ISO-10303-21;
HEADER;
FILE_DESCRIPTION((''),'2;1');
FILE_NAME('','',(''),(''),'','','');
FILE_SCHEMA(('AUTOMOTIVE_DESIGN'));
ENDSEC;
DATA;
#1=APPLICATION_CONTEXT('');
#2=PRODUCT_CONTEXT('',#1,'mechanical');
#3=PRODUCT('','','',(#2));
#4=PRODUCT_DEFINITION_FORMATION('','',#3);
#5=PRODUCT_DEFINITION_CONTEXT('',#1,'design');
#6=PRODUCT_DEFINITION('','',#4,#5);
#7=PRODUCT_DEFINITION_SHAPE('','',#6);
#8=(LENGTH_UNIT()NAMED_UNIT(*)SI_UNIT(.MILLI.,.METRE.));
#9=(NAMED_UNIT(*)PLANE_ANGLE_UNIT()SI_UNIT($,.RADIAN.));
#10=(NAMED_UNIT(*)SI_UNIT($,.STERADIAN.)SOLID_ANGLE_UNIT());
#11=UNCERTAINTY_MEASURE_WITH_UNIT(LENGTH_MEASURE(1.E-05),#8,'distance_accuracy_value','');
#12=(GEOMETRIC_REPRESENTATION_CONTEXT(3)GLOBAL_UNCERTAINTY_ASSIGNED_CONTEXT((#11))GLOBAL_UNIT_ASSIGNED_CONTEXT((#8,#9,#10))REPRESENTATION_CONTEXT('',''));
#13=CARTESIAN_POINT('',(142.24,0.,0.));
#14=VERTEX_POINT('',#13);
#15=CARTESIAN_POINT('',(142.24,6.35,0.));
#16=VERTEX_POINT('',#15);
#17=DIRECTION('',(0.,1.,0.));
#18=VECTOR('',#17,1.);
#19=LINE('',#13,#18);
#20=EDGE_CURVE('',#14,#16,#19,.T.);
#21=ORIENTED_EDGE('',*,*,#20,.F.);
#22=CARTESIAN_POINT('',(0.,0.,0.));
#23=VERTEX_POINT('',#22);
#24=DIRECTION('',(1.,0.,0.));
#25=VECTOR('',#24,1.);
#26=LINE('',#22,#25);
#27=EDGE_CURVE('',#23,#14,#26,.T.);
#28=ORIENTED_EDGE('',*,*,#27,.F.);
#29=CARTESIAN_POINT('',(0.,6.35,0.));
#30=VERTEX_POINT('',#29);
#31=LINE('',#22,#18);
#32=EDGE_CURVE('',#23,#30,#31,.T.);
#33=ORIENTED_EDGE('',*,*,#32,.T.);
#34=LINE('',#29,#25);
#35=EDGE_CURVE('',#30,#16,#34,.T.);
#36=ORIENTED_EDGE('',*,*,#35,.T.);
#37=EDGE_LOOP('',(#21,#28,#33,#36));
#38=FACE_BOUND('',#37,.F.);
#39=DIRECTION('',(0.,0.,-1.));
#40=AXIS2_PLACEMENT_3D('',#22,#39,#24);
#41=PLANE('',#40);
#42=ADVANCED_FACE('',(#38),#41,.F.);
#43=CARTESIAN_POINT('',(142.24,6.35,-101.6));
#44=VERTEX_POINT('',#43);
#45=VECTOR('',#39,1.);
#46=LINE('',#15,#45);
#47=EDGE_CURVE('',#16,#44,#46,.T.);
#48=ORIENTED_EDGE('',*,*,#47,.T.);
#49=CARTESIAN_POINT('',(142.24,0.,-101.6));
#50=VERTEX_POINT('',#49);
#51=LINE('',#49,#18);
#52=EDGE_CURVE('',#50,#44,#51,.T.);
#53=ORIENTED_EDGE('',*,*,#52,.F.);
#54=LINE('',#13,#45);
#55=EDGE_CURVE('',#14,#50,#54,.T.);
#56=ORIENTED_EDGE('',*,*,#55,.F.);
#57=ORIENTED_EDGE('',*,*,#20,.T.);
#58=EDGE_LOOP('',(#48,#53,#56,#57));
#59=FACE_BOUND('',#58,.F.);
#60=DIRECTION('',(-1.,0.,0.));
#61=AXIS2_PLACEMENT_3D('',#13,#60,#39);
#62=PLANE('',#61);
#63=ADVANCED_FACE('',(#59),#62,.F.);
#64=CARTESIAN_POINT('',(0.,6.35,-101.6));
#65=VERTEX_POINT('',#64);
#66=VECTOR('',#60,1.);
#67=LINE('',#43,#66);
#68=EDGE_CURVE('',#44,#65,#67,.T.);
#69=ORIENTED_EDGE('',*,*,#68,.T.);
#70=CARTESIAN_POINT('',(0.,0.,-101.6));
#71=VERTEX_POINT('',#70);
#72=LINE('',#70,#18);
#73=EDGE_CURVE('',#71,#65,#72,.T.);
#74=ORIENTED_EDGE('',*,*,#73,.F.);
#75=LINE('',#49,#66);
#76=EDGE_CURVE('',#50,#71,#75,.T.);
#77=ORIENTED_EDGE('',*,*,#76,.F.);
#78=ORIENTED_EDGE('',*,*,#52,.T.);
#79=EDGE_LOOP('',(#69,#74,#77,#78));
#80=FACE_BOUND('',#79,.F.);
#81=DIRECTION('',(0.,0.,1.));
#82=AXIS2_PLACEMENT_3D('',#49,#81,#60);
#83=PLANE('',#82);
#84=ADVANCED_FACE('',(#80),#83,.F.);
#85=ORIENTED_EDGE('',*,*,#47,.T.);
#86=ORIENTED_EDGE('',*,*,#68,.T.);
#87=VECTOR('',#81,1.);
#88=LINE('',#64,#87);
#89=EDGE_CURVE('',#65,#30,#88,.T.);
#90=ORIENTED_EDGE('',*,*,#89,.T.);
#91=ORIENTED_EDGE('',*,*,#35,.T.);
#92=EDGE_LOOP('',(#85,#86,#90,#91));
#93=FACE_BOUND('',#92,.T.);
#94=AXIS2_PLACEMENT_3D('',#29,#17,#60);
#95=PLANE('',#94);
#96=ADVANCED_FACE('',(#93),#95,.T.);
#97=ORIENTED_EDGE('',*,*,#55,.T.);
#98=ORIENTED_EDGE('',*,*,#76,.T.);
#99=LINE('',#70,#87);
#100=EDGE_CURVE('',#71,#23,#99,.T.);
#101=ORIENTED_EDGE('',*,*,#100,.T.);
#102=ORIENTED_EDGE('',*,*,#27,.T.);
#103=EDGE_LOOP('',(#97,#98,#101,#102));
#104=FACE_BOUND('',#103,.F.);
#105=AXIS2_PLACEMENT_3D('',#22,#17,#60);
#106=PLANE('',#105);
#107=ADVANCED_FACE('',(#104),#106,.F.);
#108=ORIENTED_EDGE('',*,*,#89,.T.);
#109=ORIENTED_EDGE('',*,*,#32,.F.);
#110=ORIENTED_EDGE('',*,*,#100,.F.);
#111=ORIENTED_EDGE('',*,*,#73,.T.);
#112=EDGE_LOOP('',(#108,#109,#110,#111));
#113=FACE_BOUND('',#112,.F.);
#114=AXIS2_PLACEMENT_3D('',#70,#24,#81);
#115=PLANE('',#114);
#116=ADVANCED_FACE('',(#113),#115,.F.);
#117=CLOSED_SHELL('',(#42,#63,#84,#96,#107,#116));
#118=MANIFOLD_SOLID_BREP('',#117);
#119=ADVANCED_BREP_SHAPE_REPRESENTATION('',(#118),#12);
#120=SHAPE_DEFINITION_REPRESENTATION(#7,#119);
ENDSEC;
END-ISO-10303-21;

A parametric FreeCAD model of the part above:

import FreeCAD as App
import Part
import Sketcher
Q = App.Units.Quantity

doc = App.newDocument("Part")
body = doc.addObject("PartDesign::Body", "Body")

# Sketch on XZ plane
sketch1 = body.newObject("Sketcher::SketchObject", "Sketch")
sketch1.AttachmentSupport = (doc.getObject("XZ_Plane"), [""])
sketch1.MapMode = "FlatFace"
sketch1.addGeometry(Part.LineSegment(App.Vector(0, -102, 0), App.Vector(0, 0, 0)), False)
sketch1.addGeometry(Part.LineSegment(App.Vector(0, 0, 0), App.Vector(142, 0, 0)), False)
sketch1.addGeometry(Part.LineSegment(App.Vector(142, 0, 0), App.Vector(142, -102, 0)), False)
sketch1.addGeometry(Part.LineSegment(App.Vector(142, -102, 0), App.Vector(0, -102, 0)), False)
sketch1.addConstraint(Sketcher.Constraint("Coincident", 0, 2, 1, 1))
sketch1.addConstraint(Sketcher.Constraint("Coincident", 1, 2, 2, 1))
sketch1.addConstraint(Sketcher.Constraint("Coincident", 2, 2, 3, 1))
sketch1.addConstraint(Sketcher.Constraint("Coincident", 3, 2, 0, 1))
sketch1.addConstraint(Sketcher.Constraint("Vertical", 0))
sketch1.addConstraint(Sketcher.Constraint("Horizontal", 1))
sketch1.addConstraint(Sketcher.Constraint("Vertical", 2))
sketch1.addConstraint(Sketcher.Constraint("Horizontal", 3))
sketch1.addConstraint(Sketcher.Constraint("Coincident", 0, 2, -1, 1))
sketch1.addConstraint(Sketcher.Constraint("DistanceY", 0, 1, 0, 2, Q("4 in")))
sketch1.addConstraint(Sketcher.Constraint("DistanceX", 1, 1, 1, 2, Q("5.6 in")))
pad1 = body.newObject("PartDesign::Pad", "Pad")
pad1.Profile = sketch1
pad1.Length = Q("0.25 in")
pad1.Reversed = True

doc.recompute()
